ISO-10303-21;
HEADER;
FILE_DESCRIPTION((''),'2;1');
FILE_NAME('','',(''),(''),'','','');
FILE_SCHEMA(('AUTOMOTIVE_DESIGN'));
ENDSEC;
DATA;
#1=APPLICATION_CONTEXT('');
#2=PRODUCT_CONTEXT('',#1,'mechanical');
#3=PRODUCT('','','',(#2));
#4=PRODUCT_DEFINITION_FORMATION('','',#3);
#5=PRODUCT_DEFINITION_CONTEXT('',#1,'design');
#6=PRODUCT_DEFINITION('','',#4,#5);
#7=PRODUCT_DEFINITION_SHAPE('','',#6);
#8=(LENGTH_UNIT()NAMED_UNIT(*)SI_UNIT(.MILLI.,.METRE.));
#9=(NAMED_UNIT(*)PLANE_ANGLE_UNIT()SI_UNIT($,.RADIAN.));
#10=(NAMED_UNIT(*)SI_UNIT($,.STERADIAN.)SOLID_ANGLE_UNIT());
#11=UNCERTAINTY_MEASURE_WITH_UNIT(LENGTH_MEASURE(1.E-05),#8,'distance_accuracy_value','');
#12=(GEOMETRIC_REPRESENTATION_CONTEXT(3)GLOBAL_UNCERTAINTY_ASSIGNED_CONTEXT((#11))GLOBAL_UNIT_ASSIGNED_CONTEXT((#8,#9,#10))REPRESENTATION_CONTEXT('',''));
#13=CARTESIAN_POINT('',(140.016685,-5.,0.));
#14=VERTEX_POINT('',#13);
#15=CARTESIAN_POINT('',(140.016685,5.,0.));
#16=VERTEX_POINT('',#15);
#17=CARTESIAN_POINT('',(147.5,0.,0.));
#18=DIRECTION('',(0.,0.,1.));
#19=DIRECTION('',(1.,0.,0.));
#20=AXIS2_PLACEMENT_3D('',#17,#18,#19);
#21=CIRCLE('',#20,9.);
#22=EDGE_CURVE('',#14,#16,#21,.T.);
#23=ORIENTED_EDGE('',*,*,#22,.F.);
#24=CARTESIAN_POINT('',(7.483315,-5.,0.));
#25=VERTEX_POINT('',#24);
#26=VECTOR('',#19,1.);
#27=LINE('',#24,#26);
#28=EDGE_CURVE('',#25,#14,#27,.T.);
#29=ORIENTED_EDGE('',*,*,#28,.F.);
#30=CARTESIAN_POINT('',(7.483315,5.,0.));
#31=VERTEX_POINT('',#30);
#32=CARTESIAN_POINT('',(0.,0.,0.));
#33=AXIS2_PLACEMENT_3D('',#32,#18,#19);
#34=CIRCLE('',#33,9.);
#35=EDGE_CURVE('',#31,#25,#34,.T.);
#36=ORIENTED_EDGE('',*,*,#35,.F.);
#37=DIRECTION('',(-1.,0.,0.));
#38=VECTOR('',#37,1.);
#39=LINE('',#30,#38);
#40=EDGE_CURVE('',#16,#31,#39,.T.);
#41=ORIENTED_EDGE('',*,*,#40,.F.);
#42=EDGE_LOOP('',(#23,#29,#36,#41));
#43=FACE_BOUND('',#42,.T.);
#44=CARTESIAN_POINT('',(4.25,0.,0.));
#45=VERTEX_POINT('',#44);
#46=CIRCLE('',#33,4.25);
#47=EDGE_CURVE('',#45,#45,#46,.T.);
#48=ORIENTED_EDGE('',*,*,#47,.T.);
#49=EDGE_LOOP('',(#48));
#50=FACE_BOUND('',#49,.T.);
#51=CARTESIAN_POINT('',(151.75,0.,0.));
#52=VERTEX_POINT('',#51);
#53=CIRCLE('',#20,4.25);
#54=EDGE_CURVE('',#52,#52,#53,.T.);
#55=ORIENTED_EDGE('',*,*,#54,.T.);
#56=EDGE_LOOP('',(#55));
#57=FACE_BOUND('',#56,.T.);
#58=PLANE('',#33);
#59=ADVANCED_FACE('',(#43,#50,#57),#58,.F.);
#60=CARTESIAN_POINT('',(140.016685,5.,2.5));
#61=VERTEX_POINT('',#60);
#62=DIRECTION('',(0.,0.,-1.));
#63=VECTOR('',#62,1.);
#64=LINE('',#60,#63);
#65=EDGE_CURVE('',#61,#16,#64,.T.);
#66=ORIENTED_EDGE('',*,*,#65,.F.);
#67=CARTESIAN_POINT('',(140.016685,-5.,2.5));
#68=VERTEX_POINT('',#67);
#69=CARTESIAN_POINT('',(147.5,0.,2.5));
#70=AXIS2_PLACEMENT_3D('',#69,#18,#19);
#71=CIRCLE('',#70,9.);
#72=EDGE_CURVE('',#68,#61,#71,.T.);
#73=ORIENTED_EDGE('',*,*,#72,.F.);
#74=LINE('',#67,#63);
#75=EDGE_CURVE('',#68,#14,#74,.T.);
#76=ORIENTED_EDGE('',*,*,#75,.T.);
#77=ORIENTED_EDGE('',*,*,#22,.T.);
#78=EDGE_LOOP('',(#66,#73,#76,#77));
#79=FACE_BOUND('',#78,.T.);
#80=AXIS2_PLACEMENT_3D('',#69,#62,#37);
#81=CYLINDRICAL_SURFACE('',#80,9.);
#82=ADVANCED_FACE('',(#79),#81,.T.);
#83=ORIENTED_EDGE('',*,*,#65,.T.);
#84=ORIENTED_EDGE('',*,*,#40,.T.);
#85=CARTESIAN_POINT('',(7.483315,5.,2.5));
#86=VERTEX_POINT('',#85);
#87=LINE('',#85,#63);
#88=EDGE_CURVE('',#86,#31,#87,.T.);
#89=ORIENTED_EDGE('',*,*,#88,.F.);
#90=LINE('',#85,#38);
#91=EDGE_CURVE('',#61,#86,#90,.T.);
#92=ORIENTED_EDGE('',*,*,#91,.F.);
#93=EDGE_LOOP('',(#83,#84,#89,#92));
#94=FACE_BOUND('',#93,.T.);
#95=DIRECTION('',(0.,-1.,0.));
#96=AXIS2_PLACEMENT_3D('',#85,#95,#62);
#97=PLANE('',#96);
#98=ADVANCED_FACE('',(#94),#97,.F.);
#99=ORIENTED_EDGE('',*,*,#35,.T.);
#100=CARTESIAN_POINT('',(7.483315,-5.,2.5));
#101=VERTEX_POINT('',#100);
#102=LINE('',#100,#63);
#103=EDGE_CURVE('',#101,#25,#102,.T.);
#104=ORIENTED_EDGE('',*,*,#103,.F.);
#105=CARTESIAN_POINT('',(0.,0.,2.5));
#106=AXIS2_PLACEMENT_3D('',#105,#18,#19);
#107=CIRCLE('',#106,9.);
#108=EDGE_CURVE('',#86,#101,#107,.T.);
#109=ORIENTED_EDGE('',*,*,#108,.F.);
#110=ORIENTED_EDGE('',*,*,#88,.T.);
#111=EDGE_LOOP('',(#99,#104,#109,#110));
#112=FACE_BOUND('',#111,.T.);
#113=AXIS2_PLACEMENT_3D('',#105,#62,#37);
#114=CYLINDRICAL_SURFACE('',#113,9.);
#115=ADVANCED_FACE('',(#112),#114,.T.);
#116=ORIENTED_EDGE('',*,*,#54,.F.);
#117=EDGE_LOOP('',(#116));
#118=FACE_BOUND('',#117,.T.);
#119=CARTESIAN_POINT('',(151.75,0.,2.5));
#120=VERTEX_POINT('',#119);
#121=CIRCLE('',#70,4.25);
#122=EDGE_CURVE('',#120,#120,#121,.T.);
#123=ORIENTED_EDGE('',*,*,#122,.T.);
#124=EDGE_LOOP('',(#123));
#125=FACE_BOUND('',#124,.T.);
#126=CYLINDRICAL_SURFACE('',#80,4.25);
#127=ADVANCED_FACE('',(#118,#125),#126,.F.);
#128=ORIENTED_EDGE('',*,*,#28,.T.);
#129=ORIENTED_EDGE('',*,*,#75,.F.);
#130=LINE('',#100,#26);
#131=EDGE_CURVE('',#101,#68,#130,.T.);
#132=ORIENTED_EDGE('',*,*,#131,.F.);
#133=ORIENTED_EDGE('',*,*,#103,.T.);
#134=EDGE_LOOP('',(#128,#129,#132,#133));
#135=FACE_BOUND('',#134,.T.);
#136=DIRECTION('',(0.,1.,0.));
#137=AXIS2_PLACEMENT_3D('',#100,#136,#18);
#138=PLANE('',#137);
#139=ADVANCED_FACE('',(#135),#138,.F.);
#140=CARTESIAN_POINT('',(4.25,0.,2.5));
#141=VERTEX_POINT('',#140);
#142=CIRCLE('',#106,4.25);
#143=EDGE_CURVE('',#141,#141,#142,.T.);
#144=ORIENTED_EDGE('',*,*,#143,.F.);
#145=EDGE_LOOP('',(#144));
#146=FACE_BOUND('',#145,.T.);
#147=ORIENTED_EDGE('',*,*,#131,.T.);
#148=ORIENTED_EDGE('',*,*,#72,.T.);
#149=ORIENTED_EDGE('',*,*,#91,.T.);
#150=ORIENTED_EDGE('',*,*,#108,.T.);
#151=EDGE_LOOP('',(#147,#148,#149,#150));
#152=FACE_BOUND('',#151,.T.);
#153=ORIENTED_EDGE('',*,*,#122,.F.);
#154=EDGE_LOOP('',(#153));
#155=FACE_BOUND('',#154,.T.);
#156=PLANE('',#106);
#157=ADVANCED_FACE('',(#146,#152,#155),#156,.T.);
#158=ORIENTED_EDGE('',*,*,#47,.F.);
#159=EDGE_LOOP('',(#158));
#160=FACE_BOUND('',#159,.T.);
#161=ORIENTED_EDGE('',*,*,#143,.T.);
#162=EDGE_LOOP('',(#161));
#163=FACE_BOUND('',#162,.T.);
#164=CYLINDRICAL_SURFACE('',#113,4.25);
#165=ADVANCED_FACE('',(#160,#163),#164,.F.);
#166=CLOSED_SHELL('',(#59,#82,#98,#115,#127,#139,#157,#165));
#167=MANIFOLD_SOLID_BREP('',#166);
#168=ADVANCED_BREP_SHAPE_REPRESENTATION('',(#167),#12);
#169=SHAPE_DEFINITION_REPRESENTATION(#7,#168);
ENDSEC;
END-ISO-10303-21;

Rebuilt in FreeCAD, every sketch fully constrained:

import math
import FreeCAD as App
import Part
import Sketcher

V = App.Vector

doc = App.newDocument("Part")
body = doc.addObject("PartDesign::Body", "Body")

# Sketch on XY plane
sketch1 = doc.addObject("Sketcher::SketchObject", "Sketch")
body.addObject(sketch1)
sketch1.AttachmentSupport = (doc.XY_Plane, [""])
sketch1.MapMode = "FlatFace"
sketch1.addGeometry(Part.LineSegment(V(140.016685, 5, 0), V(7.483315, 5, 0)), False)
sketch1.addGeometry(Part.ArcOfCircle(Part.Circle(V(0, 0, 0), V(0, 0, 1), 9), math.radians(33.748989), math.radians(326.251011)), False)
sketch1.addGeometry(Part.LineSegment(V(7.483315, -5, 0), V(140.016685, -5, 0)), False)
sketch1.addGeometry(Part.ArcOfCircle(Part.Circle(V(147.5, 0, 0), V(0, 0, 1), 9), math.radians(-146.251011), math.radians(146.251011)), False)
sketch1.addGeometry(Part.Circle(V(147.5, 0, 0), V(0, 0, 1), 4.25), False)
sketch1.addGeometry(Part.Circle(V(0, 0, 0), V(0, 0, 1), 4.25), False)
sketch1.addConstraint(Sketcher.Constraint("Coincident", 0, 2, 1, 1))
sketch1.addConstraint(Sketcher.Constraint("Coincident", 1, 2, 2, 1))
sketch1.addConstraint(Sketcher.Constraint("Coincident", 2, 2, 3, 1))
sketch1.addConstraint(Sketcher.Constraint("Coincident", 3, 2, 0, 1))
sketch1.addConstraint(Sketcher.Constraint("Horizontal", 0))
sketch1.addConstraint(Sketcher.Constraint("Horizontal", 2))
sketch1.addConstraint(Sketcher.Constraint("Coincident", 1, 3, -1, 1))
sketch1.addConstraint(Sketcher.Constraint("Coincident", 5, 3, -1, 1))
sketch1.addConstraint(Sketcher.Constraint("Coincident", 4, 3, 3, 3))
sketch1.addConstraint(Sketcher.Constraint("Equal", 1, 3))
sketch1.addConstraint(Sketcher.Constraint("Equal", 4, 5))
sketch1.addConstraint(Sketcher.Constraint("Symmetric", 2, 2, 3, 2, -1))
sketch1.addConstraint(Sketcher.Constraint("Radius", 1, 9.0))
sketch1.addConstraint(Sketcher.Constraint("Diameter", 4, 8.5))
sketch1.addConstraint(Sketcher.Constraint("DistanceY", -1, 1, 0, 2, 5.0))
sketch1.addConstraint(Sketcher.Constraint("DistanceX", -1, 1, 3, 3, 147.5))
pad1 = doc.addObject("PartDesign::Pad", "Pad")
body.addObject(pad1)
pad1.Profile = sketch1
pad1.Length = 2.5

doc.recompute()
